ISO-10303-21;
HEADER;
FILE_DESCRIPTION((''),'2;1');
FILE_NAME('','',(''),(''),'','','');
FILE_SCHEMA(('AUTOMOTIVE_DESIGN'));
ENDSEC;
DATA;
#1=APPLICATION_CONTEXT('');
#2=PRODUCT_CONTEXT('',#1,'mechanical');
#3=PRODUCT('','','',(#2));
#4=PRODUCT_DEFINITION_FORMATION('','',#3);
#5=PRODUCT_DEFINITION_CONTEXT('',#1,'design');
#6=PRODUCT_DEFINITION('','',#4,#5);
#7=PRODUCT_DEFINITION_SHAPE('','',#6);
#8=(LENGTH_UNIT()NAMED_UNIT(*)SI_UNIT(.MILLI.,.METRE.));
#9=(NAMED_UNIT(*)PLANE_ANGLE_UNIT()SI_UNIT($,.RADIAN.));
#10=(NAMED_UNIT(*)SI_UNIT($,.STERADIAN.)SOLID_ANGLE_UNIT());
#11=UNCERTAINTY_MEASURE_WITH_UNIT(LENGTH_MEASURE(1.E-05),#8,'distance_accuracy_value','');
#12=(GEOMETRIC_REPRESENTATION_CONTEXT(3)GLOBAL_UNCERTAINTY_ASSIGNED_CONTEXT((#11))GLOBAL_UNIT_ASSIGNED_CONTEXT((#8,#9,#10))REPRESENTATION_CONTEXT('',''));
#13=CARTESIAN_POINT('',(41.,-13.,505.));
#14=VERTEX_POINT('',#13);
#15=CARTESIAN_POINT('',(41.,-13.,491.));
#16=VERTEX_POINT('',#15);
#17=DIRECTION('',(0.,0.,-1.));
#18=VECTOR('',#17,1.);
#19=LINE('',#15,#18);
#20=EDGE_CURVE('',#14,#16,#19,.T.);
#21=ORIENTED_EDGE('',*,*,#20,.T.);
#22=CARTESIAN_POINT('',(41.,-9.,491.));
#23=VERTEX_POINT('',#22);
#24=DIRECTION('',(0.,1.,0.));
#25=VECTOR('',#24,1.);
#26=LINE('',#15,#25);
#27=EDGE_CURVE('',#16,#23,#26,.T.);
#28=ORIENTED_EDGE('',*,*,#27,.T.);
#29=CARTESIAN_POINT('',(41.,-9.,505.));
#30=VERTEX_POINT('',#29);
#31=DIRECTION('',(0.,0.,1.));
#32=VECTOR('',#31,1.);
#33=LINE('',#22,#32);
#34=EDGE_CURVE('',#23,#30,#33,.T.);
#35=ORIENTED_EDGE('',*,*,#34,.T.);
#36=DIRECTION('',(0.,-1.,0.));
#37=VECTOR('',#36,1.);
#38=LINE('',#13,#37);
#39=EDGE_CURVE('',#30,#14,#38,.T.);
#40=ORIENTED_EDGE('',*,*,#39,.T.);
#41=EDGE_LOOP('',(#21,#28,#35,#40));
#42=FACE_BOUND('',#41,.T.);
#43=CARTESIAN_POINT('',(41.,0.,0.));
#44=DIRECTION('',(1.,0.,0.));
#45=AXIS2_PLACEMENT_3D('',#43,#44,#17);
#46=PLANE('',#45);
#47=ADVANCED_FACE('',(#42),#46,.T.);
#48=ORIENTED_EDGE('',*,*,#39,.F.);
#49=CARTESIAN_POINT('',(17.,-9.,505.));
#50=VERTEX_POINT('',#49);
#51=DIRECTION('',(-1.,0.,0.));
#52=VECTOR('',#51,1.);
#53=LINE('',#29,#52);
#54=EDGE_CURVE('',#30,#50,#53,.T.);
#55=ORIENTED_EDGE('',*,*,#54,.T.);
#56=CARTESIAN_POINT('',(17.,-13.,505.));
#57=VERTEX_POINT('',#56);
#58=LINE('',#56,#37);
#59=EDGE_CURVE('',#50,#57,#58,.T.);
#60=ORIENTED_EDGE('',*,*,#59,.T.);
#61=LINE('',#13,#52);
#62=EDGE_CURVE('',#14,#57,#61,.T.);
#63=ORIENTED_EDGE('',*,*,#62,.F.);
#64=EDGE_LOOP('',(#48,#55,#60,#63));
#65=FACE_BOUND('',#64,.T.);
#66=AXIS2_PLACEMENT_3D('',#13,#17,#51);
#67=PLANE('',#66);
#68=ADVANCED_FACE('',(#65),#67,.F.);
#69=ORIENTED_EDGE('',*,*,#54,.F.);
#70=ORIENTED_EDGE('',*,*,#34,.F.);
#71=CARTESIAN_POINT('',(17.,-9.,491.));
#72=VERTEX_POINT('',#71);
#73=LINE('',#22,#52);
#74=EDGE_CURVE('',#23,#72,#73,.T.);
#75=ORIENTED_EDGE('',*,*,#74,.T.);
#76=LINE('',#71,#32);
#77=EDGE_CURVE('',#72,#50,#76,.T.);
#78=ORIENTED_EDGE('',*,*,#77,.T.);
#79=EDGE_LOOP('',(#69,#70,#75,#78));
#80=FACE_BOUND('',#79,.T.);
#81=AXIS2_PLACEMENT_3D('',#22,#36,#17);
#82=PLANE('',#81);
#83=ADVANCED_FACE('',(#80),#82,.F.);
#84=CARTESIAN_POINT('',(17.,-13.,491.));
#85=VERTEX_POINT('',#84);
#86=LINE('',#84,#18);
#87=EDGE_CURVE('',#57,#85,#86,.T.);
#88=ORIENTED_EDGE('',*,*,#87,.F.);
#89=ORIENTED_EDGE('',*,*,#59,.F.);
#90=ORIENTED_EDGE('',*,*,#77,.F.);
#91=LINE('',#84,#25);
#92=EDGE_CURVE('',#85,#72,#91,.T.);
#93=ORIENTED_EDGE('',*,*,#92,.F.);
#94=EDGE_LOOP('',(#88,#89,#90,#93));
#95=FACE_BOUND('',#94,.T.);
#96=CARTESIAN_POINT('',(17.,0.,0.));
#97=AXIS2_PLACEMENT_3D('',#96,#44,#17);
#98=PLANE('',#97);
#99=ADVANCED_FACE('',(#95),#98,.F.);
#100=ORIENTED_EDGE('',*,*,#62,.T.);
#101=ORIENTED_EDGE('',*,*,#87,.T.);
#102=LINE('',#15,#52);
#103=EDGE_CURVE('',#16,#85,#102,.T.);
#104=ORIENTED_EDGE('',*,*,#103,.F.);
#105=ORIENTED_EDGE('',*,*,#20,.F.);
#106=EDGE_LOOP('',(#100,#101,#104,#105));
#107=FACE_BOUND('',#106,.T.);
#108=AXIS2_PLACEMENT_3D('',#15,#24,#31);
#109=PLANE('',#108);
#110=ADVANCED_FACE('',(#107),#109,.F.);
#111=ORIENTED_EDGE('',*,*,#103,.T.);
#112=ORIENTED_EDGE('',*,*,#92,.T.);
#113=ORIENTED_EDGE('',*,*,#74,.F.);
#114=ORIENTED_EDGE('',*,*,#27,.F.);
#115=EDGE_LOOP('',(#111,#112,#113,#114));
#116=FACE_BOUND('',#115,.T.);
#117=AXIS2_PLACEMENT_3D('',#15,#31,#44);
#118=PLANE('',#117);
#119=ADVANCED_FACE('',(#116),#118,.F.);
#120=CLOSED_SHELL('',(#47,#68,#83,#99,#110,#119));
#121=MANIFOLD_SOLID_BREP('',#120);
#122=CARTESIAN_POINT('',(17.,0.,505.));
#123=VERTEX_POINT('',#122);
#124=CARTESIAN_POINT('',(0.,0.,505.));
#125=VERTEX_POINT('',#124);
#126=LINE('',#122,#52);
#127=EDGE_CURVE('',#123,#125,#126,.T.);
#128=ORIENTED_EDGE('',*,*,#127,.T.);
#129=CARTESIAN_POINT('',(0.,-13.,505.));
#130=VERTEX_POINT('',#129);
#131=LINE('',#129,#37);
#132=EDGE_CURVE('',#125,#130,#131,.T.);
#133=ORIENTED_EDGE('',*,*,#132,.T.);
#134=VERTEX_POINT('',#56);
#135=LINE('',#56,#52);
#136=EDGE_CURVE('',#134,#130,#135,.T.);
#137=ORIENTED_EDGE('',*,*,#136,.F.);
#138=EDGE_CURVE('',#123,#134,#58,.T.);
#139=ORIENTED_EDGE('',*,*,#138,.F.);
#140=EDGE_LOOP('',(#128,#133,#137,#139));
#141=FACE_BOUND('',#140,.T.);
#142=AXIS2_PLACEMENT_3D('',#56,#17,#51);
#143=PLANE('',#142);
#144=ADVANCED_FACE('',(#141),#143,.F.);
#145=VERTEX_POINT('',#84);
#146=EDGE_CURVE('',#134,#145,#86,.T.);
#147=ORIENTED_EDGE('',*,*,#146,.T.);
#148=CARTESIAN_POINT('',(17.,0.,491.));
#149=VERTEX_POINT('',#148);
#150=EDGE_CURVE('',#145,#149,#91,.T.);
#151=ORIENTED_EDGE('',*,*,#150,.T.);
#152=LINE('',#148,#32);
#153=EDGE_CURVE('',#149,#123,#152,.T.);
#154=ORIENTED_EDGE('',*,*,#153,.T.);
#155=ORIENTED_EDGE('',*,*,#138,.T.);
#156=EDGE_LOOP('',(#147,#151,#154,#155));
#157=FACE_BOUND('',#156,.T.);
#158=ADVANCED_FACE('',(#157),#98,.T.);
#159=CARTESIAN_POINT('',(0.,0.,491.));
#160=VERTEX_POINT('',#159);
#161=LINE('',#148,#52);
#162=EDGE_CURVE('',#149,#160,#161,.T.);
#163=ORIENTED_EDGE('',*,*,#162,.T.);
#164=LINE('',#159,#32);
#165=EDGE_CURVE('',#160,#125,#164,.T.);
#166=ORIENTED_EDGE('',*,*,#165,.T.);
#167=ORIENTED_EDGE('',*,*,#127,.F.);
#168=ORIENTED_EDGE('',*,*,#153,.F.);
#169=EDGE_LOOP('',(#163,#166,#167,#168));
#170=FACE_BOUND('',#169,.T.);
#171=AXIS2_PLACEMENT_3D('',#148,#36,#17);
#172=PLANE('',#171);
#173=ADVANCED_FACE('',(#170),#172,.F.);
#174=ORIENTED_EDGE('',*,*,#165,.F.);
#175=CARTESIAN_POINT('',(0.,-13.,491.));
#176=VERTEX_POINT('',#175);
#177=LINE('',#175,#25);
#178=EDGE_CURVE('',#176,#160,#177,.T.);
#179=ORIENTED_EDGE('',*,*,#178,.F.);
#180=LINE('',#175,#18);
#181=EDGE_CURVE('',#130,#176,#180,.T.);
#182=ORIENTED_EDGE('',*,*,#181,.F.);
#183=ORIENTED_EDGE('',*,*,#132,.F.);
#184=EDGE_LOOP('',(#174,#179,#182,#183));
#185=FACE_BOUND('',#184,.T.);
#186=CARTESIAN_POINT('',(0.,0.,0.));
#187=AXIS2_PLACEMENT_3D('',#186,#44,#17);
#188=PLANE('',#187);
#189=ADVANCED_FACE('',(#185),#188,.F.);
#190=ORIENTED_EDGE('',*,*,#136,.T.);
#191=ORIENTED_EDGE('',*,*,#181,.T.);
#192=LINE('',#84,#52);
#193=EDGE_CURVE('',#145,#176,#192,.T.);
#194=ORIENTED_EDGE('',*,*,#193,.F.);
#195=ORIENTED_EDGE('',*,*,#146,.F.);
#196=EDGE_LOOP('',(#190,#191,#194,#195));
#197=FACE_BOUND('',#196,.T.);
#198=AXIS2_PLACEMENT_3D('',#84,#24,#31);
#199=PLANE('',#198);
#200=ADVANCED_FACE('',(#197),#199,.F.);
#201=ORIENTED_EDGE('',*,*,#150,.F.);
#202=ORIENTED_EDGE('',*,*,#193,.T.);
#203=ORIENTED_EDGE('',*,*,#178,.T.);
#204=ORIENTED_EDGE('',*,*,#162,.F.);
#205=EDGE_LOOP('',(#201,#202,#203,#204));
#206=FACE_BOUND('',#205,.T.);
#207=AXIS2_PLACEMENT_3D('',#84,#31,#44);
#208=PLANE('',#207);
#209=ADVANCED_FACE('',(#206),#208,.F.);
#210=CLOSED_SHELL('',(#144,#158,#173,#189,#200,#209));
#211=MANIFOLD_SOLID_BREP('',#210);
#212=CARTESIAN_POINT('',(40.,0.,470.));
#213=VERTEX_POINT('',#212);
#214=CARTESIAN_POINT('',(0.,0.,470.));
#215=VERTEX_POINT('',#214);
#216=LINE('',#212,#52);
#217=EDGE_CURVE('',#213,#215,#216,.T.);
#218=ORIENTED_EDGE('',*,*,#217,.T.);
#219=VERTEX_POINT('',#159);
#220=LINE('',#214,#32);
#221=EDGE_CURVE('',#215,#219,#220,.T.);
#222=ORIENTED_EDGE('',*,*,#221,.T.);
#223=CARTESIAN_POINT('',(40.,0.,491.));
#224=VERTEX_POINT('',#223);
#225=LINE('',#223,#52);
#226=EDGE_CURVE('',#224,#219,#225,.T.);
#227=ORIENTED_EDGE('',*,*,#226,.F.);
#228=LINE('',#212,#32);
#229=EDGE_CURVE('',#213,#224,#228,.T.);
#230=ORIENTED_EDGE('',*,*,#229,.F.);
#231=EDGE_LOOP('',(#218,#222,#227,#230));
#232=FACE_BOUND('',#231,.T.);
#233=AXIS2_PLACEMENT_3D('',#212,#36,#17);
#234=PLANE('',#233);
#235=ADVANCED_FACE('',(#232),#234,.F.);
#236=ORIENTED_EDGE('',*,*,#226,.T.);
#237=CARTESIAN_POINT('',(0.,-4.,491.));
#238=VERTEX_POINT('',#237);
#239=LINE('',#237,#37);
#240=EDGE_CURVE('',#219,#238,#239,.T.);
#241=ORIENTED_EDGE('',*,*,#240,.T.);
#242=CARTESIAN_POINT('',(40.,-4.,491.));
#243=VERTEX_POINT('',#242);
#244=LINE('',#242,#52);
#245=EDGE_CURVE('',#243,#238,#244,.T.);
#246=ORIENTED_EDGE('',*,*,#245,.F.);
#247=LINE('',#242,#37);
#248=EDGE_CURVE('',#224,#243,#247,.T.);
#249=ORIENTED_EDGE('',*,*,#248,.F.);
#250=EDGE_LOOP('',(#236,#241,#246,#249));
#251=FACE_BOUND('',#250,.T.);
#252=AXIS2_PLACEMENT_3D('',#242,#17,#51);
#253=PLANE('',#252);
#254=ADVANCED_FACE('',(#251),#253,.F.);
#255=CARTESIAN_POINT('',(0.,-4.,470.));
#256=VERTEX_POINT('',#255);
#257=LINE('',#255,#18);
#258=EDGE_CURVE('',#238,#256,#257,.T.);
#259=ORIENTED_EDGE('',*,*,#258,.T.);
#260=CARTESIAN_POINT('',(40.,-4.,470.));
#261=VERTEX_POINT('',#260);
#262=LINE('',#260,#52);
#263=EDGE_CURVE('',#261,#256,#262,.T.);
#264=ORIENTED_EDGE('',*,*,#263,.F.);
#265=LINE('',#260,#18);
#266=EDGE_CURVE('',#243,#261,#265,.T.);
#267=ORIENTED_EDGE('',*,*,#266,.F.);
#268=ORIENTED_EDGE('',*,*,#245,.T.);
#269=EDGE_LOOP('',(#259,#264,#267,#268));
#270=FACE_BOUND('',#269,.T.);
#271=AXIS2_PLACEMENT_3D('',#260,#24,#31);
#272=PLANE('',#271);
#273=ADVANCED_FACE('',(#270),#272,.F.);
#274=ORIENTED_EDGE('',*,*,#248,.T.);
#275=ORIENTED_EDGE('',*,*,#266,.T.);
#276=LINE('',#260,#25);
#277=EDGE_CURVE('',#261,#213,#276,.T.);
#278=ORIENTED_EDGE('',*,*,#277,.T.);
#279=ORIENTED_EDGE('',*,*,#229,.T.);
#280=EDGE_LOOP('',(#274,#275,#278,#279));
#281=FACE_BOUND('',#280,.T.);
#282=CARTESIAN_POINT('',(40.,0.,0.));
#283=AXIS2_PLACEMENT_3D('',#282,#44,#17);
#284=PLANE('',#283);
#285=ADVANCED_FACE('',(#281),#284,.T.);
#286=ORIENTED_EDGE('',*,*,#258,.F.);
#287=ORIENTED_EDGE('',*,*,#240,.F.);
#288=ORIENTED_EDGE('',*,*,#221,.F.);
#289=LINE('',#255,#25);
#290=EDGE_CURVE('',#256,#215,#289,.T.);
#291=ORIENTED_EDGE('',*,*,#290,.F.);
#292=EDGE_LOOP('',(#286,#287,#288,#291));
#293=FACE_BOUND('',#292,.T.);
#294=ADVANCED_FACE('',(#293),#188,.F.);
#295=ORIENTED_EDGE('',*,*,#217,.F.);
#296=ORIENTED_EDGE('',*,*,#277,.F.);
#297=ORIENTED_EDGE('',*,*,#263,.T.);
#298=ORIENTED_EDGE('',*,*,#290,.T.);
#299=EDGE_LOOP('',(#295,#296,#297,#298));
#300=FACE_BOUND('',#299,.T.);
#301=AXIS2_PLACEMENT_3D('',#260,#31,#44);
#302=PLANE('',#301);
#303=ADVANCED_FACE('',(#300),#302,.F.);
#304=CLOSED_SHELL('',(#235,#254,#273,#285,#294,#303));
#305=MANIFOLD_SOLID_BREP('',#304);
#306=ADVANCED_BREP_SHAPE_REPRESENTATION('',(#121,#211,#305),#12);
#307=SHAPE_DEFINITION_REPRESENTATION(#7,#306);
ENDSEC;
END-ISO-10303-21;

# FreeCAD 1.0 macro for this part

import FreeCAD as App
import Part
import Sketcher
from FreeCAD import Vector

doc = App.newDocument("Part")
body = doc.addObject("PartDesign::Body", "Body")

sketch1 = doc.addObject("Sketcher::SketchObject", "Sketch")
body.addObject(sketch1)
sketch1.AttachmentSupport = (doc.YZ_Plane, [""])
sketch1.MapMode = "FlatFace"
sketch1.AttachmentOffset = App.Placement(Vector(0, 0, 17), App.Rotation())
sketch1.addGeometry([
    Part.LineSegment(Vector(-9, 505, 0), Vector(-13, 505, 0)),
    Part.LineSegment(Vector(-13, 505, 0), Vector(-13, 491, 0)),
    Part.LineSegment(Vector(-13, 491, 0), Vector(-9, 491, 0)),
    Part.LineSegment(Vector(-9, 491, 0), Vector(-9, 505, 0)),
], False)
sketch1.addConstraint([
    Sketcher.Constraint("Coincident", 0, 2, 1, 1),
    Sketcher.Constraint("Coincident", 1, 2, 2, 1),
    Sketcher.Constraint("Coincident", 2, 2, 3, 1),
    Sketcher.Constraint("Coincident", 3, 2, 0, 1),
    Sketcher.Constraint("Horizontal", 0),
    Sketcher.Constraint("Vertical", 1),
    Sketcher.Constraint("Horizontal", 2),
    Sketcher.Constraint("Vertical", 3),
    Sketcher.Constraint("DistanceX", 0, 2, 0, 1, 4.0),
    Sketcher.Constraint("DistanceY", 1, 2, 1, 1, 14.0),
    Sketcher.Constraint("DistanceX", 0, 2, -1, 1, 13.0),
    Sketcher.Constraint("DistanceY", -1, 1, 0, 2, 505.0),
])
pad1 = doc.addObject("PartDesign::Pad", "Pad")
body.addObject(pad1)
pad1.Profile = sketch1
pad1.Length = 24
body2 = doc.addObject("PartDesign::Body", "Body001")

sketch2 = doc.addObject("Sketcher::SketchObject", "Sketch001")
body2.addObject(sketch2)
sketch2.AttachmentSupport = (doc.getObject("YZ_Plane001"), [""])
sketch2.MapMode = "FlatFace"
sketch2.addGeometry([
    Part.LineSegment(Vector(0, 505, 0), Vector(-13, 505, 0)),
    Part.LineSegment(Vector(-13, 505, 0), Vector(-13, 491, 0)),
    Part.LineSegment(Vector(-13, 491, 0), Vector(0, 491, 0)),
    Part.LineSegment(Vector(0, 491, 0), Vector(0, 505, 0)),
], False)
sketch2.addConstraint([
    Sketcher.Constraint("Coincident", 0, 2, 1, 1),
    Sketcher.Constraint("Coincident", 1, 2, 2, 1),
    Sketcher.Constraint("Coincident", 2, 2, 3, 1),
    Sketcher.Constraint("Coincident", 3, 2, 0, 1),
    Sketcher.Constraint("Horizontal", 0),
    Sketcher.Constraint("Vertical", 1),
    Sketcher.Constraint("Horizontal", 2),
    Sketcher.Constraint("Vertical", 3),
    Sketcher.Constraint("PointOnObject", 2, 2, -2),
    Sketcher.Constraint("DistanceX", 0, 2, 0, 1, 13.0),
    Sketcher.Constraint("DistanceY", 1, 2, 1, 1, 14.0),
    Sketcher.Constraint("DistanceY", -1, 1, 0, 2, 505.0),
])
pad2 = doc.addObject("PartDesign::Pad", "Pad001")
body2.addObject(pad2)
pad2.Profile = sketch2
pad2.Length = 17
body3 = doc.addObject("PartDesign::Body", "Body002")

sketch3 = doc.addObject("Sketcher::SketchObject", "Sketch002")
body3.addObject(sketch3)
sketch3.AttachmentSupport = (doc.getObject("YZ_Plane002"), [""])
sketch3.MapMode = "FlatFace"
sketch3.addGeometry([
    Part.LineSegment(Vector(0, 491, 0), Vector(-4, 491, 0)),
    Part.LineSegment(Vector(-4, 491, 0), Vector(-4, 470, 0)),
    Part.LineSegment(Vector(-4, 470, 0), Vector(0, 470, 0)),
    Part.LineSegment(Vector(0, 470, 0), Vector(0, 491, 0)),
], False)
sketch3.addConstraint([
    Sketcher.Constraint("Coincident", 0, 2, 1, 1),
    Sketcher.Constraint("Coincident", 1, 2, 2, 1),
    Sketcher.Constraint("Coincident", 2, 2, 3, 1),
    Sketcher.Constraint("Coincident", 3, 2, 0, 1),
    Sketcher.Constraint("Horizontal", 0),
    Sketcher.Constraint("Vertical", 1),
    Sketcher.Constraint("Horizontal", 2),
    Sketcher.Constraint("Vertical", 3),
    Sketcher.Constraint("PointOnObject", 2, 2, -2),
    Sketcher.Constraint("DistanceX", 0, 2, 0, 1, 4.0),
    Sketcher.Constraint("DistanceY", 1, 2, 1, 1, 21.0),
    Sketcher.Constraint("DistanceY", -1, 1, 0, 2, 491.0),
])
pad3 = doc.addObject("PartDesign::Pad", "Pad002")
body3.addObject(pad3)
pad3.Profile = sketch3
pad3.Length = 40

doc.recompute()
